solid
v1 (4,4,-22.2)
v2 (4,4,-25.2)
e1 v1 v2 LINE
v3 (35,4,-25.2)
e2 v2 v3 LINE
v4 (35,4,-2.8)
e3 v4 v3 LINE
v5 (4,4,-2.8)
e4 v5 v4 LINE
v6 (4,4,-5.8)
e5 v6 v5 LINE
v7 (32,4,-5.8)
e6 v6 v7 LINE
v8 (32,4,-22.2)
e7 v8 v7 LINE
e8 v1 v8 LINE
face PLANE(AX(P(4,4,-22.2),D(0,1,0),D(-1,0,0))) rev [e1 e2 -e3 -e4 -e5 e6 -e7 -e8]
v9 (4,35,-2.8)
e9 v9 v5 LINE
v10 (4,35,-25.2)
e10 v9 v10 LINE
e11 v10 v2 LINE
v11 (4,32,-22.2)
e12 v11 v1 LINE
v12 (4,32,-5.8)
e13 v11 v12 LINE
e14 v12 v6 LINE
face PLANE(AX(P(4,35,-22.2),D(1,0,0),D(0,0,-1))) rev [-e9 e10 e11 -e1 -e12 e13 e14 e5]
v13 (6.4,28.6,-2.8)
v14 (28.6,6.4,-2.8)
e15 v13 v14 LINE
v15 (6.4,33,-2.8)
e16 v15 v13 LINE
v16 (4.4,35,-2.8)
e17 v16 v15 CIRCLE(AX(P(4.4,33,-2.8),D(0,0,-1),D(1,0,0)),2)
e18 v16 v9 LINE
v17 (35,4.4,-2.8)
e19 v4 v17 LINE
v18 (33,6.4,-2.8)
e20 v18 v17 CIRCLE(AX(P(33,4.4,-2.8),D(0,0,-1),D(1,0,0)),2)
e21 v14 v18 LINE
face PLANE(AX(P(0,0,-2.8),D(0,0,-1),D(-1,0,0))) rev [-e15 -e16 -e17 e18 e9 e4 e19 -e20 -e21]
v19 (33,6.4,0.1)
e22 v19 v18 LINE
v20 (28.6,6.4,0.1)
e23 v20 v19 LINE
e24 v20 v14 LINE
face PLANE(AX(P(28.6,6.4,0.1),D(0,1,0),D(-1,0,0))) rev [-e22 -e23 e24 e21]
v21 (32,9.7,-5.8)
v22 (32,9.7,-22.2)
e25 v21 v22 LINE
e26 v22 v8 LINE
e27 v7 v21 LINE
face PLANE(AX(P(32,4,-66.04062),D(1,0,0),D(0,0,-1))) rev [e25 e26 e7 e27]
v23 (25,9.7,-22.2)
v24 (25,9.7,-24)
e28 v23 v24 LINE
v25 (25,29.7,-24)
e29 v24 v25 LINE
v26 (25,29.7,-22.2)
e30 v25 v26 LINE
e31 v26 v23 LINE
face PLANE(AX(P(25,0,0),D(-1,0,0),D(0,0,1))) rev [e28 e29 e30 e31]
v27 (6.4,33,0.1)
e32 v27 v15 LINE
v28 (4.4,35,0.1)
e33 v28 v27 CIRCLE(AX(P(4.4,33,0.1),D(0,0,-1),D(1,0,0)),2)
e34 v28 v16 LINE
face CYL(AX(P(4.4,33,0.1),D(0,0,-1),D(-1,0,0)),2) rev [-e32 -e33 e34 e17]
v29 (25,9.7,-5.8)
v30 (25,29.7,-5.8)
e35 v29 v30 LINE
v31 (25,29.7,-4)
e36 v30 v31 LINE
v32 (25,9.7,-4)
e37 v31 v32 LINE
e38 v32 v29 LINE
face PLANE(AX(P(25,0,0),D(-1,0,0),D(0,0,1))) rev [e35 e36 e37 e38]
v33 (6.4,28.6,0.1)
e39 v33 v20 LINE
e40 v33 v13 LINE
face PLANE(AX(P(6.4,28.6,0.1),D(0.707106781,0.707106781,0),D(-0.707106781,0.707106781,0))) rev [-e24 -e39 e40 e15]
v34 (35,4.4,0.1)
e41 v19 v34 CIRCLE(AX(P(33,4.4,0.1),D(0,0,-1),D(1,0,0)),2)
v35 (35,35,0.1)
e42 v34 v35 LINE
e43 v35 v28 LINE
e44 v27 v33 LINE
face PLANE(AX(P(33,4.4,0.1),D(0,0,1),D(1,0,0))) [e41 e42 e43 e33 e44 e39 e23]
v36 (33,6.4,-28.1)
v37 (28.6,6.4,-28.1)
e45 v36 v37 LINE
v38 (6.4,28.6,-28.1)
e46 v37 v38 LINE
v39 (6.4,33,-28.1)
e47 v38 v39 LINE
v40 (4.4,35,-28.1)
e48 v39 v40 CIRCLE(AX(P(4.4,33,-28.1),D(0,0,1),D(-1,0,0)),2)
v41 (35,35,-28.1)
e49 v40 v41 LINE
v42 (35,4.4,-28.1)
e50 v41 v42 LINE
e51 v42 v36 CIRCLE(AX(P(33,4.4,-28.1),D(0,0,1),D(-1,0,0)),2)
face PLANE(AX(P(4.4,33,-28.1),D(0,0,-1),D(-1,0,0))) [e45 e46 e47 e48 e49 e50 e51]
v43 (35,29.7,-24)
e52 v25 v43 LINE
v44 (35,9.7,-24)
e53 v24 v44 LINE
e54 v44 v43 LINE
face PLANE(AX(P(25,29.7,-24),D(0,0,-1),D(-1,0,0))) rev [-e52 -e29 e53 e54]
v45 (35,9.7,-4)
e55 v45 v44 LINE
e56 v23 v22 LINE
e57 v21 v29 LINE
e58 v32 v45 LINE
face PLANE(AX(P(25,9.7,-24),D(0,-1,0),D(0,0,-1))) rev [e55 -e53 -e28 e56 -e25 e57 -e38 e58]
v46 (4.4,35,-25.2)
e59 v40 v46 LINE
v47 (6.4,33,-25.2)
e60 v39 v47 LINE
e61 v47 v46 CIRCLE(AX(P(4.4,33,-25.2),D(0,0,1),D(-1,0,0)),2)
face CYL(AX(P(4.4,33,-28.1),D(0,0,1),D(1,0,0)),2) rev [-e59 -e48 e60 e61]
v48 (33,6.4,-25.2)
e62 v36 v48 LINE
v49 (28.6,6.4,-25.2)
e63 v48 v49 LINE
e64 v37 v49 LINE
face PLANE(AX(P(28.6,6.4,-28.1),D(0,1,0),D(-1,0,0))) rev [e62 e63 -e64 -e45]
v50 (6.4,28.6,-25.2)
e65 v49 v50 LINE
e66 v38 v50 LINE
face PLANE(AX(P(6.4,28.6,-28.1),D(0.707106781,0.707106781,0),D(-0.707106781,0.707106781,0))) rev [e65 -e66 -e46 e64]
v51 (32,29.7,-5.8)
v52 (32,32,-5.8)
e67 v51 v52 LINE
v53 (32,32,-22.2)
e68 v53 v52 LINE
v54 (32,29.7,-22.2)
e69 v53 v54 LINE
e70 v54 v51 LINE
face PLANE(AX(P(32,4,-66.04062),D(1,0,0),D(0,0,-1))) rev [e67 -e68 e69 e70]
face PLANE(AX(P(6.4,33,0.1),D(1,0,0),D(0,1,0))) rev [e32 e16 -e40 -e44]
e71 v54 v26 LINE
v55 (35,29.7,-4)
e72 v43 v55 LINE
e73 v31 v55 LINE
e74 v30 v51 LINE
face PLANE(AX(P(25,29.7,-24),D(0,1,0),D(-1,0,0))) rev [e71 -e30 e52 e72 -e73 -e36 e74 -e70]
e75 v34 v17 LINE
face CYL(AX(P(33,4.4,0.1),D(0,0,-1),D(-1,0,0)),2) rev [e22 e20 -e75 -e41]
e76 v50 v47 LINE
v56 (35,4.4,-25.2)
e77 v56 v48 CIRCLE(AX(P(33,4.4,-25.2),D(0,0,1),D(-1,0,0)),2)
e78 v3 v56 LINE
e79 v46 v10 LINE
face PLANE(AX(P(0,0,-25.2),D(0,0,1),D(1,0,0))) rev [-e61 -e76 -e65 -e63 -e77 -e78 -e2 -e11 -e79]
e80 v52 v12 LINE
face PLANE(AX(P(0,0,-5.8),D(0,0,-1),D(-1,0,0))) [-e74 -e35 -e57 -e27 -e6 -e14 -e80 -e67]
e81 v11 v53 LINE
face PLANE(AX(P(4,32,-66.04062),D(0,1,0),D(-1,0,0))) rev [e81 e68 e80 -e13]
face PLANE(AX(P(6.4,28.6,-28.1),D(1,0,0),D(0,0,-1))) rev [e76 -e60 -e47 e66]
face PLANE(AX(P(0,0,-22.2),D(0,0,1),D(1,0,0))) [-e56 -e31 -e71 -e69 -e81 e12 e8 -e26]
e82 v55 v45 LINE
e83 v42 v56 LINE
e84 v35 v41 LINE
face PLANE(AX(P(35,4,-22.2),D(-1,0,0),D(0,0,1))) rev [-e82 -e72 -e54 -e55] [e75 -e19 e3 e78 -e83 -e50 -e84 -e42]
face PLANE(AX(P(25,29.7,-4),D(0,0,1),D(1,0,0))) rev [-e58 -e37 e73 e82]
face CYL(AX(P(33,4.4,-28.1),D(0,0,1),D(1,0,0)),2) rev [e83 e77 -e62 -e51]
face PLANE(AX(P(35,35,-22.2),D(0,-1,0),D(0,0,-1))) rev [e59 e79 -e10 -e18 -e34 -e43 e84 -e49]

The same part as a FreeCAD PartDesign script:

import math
import FreeCAD as App
import Part
import Sketcher

doc = App.newDocument("Part")
body = doc.addObject("PartDesign::Body", "Body")

# Sketch on XY plane
sketch1 = doc.addObject("Sketcher::SketchObject", "Sketch")
body.addObject(sketch1)
sketch1.AttachmentSupport = (doc.XY_Plane, [""])
sketch1.MapMode = "FlatFace"
sketch1.AttachmentOffset = App.Placement(App.Vector(0, 0, -2.8), App.Rotation())
sketch1.addGeometry([
    Part.LineSegment(App.Vector(35, 4, 0), App.Vector(35, 35, 0)),
    Part.LineSegment(App.Vector(35, 35, 0), App.Vector(4, 35, 0)),
    Part.LineSegment(App.Vector(4, 35, 0), App.Vector(4, 4, 0)),
    Part.LineSegment(App.Vector(4, 4, 0), App.Vector(35, 4, 0)),
], False)
sketch1.addConstraint([
    Sketcher.Constraint("Coincident", 0, 2, 1, 1),
    Sketcher.Constraint("Coincident", 1, 2, 2, 1),
    Sketcher.Constraint("Coincident", 2, 2, 3, 1),
    Sketcher.Constraint("Coincident", 3, 2, 0, 1),
    Sketcher.Constraint("Vertical", 0),
    Sketcher.Constraint("Horizontal", 1),
    Sketcher.Constraint("Vertical", 2),
    Sketcher.Constraint("Horizontal", 3),
    Sketcher.Constraint("Equal", 3, 0),
    Sketcher.Constraint("DistanceX", 1, 2, 1, 1, 31.0),
    Sketcher.Constraint("DistanceX", -1, 1, 0, 2, 35.0),
    Sketcher.Constraint("DistanceY", -1, 1, 0, 2, 35.0),
])
pad1 = doc.addObject("PartDesign::Pad", "Pad")
body.addObject(pad1)
pad1.Profile = sketch1
pad1.Length = 3
pad1.Reversed = True

# Sketch on XY plane
sketch2 = doc.addObject("Sketcher::SketchObject", "Sketch001")
body.addObject(sketch2)
sketch2.AttachmentSupport = (doc.XY_Plane, [""])
sketch2.MapMode = "FlatFace"
sketch2.AttachmentOffset = App.Placement(App.Vector(0, 0, -2.8), App.Rotation())
sketch2.addGeometry([
    Part.LineSegment(App.Vector(6.4, 33, 0), App.Vector(6.4, 28.6, 0)),  # 0
    Part.LineSegment(App.Vector(6.4, 28.6, 0), App.Vector(28.6, 6.4, 0)),  # 1
    Part.LineSegment(App.Vector(28.6, 6.4, 0), App.Vector(33, 6.4, 0)),  # 2
    Part.ArcOfCircle(Part.Circle(App.Vector(33, 4.4, 0), App.Vector(0, 0, 1), 2), math.radians(0), math.radians(90)),  # 3
    Part.LineSegment(App.Vector(35, 4.4, 0), App.Vector(35, 35, 0)),  # 4
    Part.LineSegment(App.Vector(35, 35, 0), App.Vector(4.4, 35, 0)),  # 5
    Part.ArcOfCircle(Part.Circle(App.Vector(4.4, 33, 0), App.Vector(0, 0, 1), 2), math.radians(0), math.radians(90)),  # 6
], False)
sketch2.addConstraint([
    Sketcher.Constraint("Coincident", 0, 2, 1, 1),
    Sketcher.Constraint("Coincident", 1, 2, 2, 1),
    Sketcher.Constraint("Tangent", 2, 2, 3, 2),
    Sketcher.Constraint("Tangent", 3, 1, 4, 1),
    Sketcher.Constraint("Coincident", 4, 2, 5, 1),
    Sketcher.Constraint("Tangent", 5, 2, 6, 2),
    Sketcher.Constraint("Tangent", 6, 1, 0, 1),
    Sketcher.Constraint("Vertical", 0),
    Sketcher.Constraint("Horizontal", 2),
    Sketcher.Constraint("Vertical", 4),
    Sketcher.Constraint("Horizontal", 5),
    Sketcher.Constraint("Equal", 3, 6),
    Sketcher.Constraint("Equal", 2, 0),
    Sketcher.Constraint("Equal", 5, 4),
    Sketcher.Constraint("Radius", 3, 2.0),
    Sketcher.Constraint("DistanceX", 2, 1, 2, 2, 4.4),
    Sketcher.Constraint("DistanceX", 5, 2, 5, 1, 30.6),
    Sketcher.Constraint("DistanceX", -1, 1, 3, 3, 33.0),
    Sketcher.Constraint("DistanceY", -1, 1, 6, 3, 33.0),
])
pad2 = doc.addObject("PartDesign::Pad", "Pad001")
body.addObject(pad2)
pad2.Profile = sketch2
pad2.Length = 2.9
body2 = doc.addObject("PartDesign::Body", "Body001")

# Sketch on XY plane
sketch3 = doc.addObject("Sketcher::SketchObject", "Sketch002")
body2.addObject(sketch3)
sketch3.AttachmentSupport = (doc.getObject("XY_Plane001"), [""])
sketch3.MapMode = "FlatFace"
sketch3.AttachmentOffset = App.Placement(App.Vector(0, 0, -25.2), App.Rotation())
sketch3.addGeometry([
    Part.LineSegment(App.Vector(35, 4, 0), App.Vector(35, 35, 0)),
    Part.LineSegment(App.Vector(35, 35, 0), App.Vector(4, 35, 0)),
    Part.LineSegment(App.Vector(4, 35, 0), App.Vector(4, 4, 0)),
    Part.LineSegment(App.Vector(4, 4, 0), App.Vector(35, 4, 0)),
], False)
sketch3.addConstraint([
    Sketcher.Constraint("Coincident", 0, 2, 1, 1),
    Sketcher.Constraint("Coincident", 1, 2, 2, 1),
    Sketcher.Constraint("Coincident", 2, 2, 3, 1),
    Sketcher.Constraint("Coincident", 3, 2, 0, 1),
    Sketcher.Constraint("Vertical", 0),
    Sketcher.Constraint("Horizontal", 1),
    Sketcher.Constraint("Vertical", 2),
    Sketcher.Constraint("Horizontal", 3),
    Sketcher.Constraint("Equal", 3, 0),
    Sketcher.Constraint("DistanceX", 1, 2, 1, 1, 31.0),
    Sketcher.Constraint("DistanceX", -1, 1, 0, 2, 35.0),
    Sketcher.Constraint("DistanceY", -1, 1, 0, 2, 35.0),
])
pad3 = doc.addObject("PartDesign::Pad", "Pad002")
body2.addObject(pad3)
pad3.Profile = sketch3
pad3.Length = 3

# Sketch on XY plane
sketch4 = doc.addObject("Sketcher::SketchObject", "Sketch003")
body2.addObject(sketch4)
sketch4.AttachmentSupport = (doc.getObject("XY_Plane001"), [""])
sketch4.MapMode = "FlatFace"
sketch4.AttachmentOffset = App.Placement(App.Vector(0, 0, -25.2), App.Rotation())
sketch4.addGeometry([
    Part.LineSegment(App.Vector(28.6, 6.4, 0), App.Vector(6.4, 28.6, 0)),  # 0
    Part.LineSegment(App.Vector(6.4, 28.6, 0), App.Vector(6.4, 33, 0)),  # 1
    Part.ArcOfCircle(Part.Circle(App.Vector(4.4, 33, 0), App.Vector(0, 0, 1), 2), math.radians(0), math.radians(90)),  # 2
    Part.LineSegment(App.Vector(4.4, 35, 0), App.Vector(35, 35, 0)),  # 3
    Part.LineSegment(App.Vector(35, 35, 0), App.Vector(35, 4.4, 0)),  # 4
    Part.ArcOfCircle(Part.Circle(App.Vector(33, 4.4, 0), App.Vector(0, 0, 1), 2), math.radians(0), math.radians(90)),  # 5
    Part.LineSegment(App.Vector(33, 6.4, 0), App.Vector(28.6, 6.4, 0)),  # 6
], False)
sketch4.addConstraint([
    Sketcher.Constraint("Coincident", 0, 2, 1, 1),
    Sketcher.Constraint("Tangent", 1, 2, 2, 1),
    Sketcher.Constraint("Tangent", 2, 2, 3, 1),
    Sketcher.Constraint("Coincident", 3, 2, 4, 1),
    Sketcher.Constraint("Tangent", 4, 2, 5, 1),
    Sketcher.Constraint("Tangent", 5, 2, 6, 1),
    Sketcher.Constraint("Coincident", 6, 2, 0, 1),
    Sketcher.Constraint("Vertical", 1),
    Sketcher.Constraint("Horizontal", 3),
    Sketcher.Constraint("Vertical", 4),
    Sketcher.Constraint("Horizontal", 6),
    Sketcher.Constraint("Equal", 2, 5),
    Sketcher.Constraint("Equal", 6, 1),
    Sketcher.Constraint("Equal", 3, 4),
    Sketcher.Constraint("Radius", 2, 2.0),
    Sketcher.Constraint("DistanceX", 3, 1, 3, 2, 30.6),
    Sketcher.Constraint("DistanceX", 6, 2, 6, 1, 4.4),
    Sketcher.Constraint("DistanceY", -1, 1, 2, 3, 33.0),
    Sketcher.Constraint("DistanceX", -1, 1, 5, 3, 33.0),
])
pad4 = doc.addObject("PartDesign::Pad", "Pad003")
body2.addObject(pad4)
pad4.Profile = sketch4
pad4.Length = 2.9
pad4.Reversed = True
body.AllowCompound = True
doc.recompute()

boolean = doc.addObject("PartDesign::Boolean", "Boolean")
body.addObject(boolean)
boolean.Type = "Fuse"
boolean.addObjects([body2])

# Sketch on XY plane
sketch5 = doc.addObject("Sketcher::SketchObject", "Sketch004")
body.addObject(sketch5)
sketch5.AttachmentSupport = (doc.XY_Plane, [""])
sketch5.MapMode = "FlatFace"
sketch5.AttachmentOffset = App.Placement(App.Vector(0, 0, -5.8), App.Rotation())
sketch5.addGeometry([
    Part.LineSegment(App.Vector(35, 4, 0), App.Vector(32, 4, 0)),  # 0
    Part.LineSegment(App.Vector(32, 4, 0), App.Vector(32, 32, 0)),  # 1
    Part.LineSegment(App.Vector(32, 32, 0), App.Vector(4, 32, 0)),  # 2
    Part.LineSegment(App.Vector(4, 32, 0), App.Vector(4, 35, 0)),  # 3
    Part.LineSegment(App.Vector(4, 35, 0), App.Vector(35, 35, 0)),  # 4
    Part.LineSegment(App.Vector(35, 35, 0), App.Vector(35, 4, 0)),  # 5
], False)
sketch5.addConstraint([
    Sketcher.Constraint("Coincident", 0, 2, 1, 1),
    Sketcher.Constraint("Coincident", 1, 2, 2, 1),
    Sketcher.Constraint("Coincident", 2, 2, 3, 1),
    Sketcher.Constraint("Coincident", 3, 2, 4, 1),
    Sketcher.Constraint("Coincident", 4, 2, 5, 1),
    Sketcher.Constraint("Coincident", 5, 2, 0, 1),
    Sketcher.Constraint("Horizontal", 0),
    Sketcher.Constraint("Vertical", 1),
    Sketcher.Constraint("Horizontal", 2),
    Sketcher.Constraint("Vertical", 3),
    Sketcher.Constraint("Horizontal", 4),
    Sketcher.Constraint("Vertical", 5),
    Sketcher.Constraint("Equal", 2, 1),
    Sketcher.Constraint("Equal", 0, 3),
    Sketcher.Constraint("DistanceX", 0, 2, 0, 1, 3.0),
    Sketcher.Constraint("DistanceX", 2, 2, 2, 1, 28.0),
    Sketcher.Constraint("DistanceX", -1, 1, 0, 2, 32.0),
    Sketcher.Constraint("DistanceY", -1, 1, 0, 2, 4.0),
])
pad5 = doc.addObject("PartDesign::Pad", "Pad004")
body.addObject(pad5)
pad5.Profile = sketch5
pad5.Length = 16.4
pad5.Reversed = True

# Sketch on YZ plane
sketch6 = doc.addObject("Sketcher::SketchObject", "Sketch005")
body.addObject(sketch6)
sketch6.AttachmentSupport = (doc.YZ_Plane, [""])
sketch6.MapMode = "FlatFace"
sketch6.AttachmentOffset = App.Placement(App.Vector(0, 0, 35), App.Rotation())
sketch6.addGeometry([
    Part.LineSegment(App.Vector(29.7, -4, 0), App.Vector(9.7, -4, 0)),
    Part.LineSegment(App.Vector(9.7, -4, 0), App.Vector(9.7, -24, 0)),
    Part.LineSegment(App.Vector(9.7, -24, 0), App.Vector(29.7, -24, 0)),
    Part.LineSegment(App.Vector(29.7, -24, 0), App.Vector(29.7, -4, 0)),
], False)
sketch6.addConstraint([
    Sketcher.Constraint("Coincident", 0, 2, 1, 1),
    Sketcher.Constraint("Coincident", 1, 2, 2, 1),
    Sketcher.Constraint("Coincident", 2, 2, 3, 1),
    Sketcher.Constraint("Coincident", 3, 2, 0, 1),
    Sketcher.Constraint("Horizontal", 0),
    Sketcher.Constraint("Vertical", 1),
    Sketcher.Constraint("Horizontal", 2),
    Sketcher.Constraint("Vertical", 3),
    Sketcher.Constraint("Equal", 2, 1),
    Sketcher.Constraint("DistanceX", 0, 2, 0, 1, 20.0),
    Sketcher.Constraint("DistanceY", 0, 2, -1, 1, 4.0),
    Sketcher.Constraint("DistanceX", -1, 1, 0, 2, 9.7),
])
pocket1 = doc.addObject("PartDesign::Pocket", "Pocket")
body.addObject(pocket1)
pocket1.Profile = sketch6
pocket1.Length = 10

doc.recompute()
